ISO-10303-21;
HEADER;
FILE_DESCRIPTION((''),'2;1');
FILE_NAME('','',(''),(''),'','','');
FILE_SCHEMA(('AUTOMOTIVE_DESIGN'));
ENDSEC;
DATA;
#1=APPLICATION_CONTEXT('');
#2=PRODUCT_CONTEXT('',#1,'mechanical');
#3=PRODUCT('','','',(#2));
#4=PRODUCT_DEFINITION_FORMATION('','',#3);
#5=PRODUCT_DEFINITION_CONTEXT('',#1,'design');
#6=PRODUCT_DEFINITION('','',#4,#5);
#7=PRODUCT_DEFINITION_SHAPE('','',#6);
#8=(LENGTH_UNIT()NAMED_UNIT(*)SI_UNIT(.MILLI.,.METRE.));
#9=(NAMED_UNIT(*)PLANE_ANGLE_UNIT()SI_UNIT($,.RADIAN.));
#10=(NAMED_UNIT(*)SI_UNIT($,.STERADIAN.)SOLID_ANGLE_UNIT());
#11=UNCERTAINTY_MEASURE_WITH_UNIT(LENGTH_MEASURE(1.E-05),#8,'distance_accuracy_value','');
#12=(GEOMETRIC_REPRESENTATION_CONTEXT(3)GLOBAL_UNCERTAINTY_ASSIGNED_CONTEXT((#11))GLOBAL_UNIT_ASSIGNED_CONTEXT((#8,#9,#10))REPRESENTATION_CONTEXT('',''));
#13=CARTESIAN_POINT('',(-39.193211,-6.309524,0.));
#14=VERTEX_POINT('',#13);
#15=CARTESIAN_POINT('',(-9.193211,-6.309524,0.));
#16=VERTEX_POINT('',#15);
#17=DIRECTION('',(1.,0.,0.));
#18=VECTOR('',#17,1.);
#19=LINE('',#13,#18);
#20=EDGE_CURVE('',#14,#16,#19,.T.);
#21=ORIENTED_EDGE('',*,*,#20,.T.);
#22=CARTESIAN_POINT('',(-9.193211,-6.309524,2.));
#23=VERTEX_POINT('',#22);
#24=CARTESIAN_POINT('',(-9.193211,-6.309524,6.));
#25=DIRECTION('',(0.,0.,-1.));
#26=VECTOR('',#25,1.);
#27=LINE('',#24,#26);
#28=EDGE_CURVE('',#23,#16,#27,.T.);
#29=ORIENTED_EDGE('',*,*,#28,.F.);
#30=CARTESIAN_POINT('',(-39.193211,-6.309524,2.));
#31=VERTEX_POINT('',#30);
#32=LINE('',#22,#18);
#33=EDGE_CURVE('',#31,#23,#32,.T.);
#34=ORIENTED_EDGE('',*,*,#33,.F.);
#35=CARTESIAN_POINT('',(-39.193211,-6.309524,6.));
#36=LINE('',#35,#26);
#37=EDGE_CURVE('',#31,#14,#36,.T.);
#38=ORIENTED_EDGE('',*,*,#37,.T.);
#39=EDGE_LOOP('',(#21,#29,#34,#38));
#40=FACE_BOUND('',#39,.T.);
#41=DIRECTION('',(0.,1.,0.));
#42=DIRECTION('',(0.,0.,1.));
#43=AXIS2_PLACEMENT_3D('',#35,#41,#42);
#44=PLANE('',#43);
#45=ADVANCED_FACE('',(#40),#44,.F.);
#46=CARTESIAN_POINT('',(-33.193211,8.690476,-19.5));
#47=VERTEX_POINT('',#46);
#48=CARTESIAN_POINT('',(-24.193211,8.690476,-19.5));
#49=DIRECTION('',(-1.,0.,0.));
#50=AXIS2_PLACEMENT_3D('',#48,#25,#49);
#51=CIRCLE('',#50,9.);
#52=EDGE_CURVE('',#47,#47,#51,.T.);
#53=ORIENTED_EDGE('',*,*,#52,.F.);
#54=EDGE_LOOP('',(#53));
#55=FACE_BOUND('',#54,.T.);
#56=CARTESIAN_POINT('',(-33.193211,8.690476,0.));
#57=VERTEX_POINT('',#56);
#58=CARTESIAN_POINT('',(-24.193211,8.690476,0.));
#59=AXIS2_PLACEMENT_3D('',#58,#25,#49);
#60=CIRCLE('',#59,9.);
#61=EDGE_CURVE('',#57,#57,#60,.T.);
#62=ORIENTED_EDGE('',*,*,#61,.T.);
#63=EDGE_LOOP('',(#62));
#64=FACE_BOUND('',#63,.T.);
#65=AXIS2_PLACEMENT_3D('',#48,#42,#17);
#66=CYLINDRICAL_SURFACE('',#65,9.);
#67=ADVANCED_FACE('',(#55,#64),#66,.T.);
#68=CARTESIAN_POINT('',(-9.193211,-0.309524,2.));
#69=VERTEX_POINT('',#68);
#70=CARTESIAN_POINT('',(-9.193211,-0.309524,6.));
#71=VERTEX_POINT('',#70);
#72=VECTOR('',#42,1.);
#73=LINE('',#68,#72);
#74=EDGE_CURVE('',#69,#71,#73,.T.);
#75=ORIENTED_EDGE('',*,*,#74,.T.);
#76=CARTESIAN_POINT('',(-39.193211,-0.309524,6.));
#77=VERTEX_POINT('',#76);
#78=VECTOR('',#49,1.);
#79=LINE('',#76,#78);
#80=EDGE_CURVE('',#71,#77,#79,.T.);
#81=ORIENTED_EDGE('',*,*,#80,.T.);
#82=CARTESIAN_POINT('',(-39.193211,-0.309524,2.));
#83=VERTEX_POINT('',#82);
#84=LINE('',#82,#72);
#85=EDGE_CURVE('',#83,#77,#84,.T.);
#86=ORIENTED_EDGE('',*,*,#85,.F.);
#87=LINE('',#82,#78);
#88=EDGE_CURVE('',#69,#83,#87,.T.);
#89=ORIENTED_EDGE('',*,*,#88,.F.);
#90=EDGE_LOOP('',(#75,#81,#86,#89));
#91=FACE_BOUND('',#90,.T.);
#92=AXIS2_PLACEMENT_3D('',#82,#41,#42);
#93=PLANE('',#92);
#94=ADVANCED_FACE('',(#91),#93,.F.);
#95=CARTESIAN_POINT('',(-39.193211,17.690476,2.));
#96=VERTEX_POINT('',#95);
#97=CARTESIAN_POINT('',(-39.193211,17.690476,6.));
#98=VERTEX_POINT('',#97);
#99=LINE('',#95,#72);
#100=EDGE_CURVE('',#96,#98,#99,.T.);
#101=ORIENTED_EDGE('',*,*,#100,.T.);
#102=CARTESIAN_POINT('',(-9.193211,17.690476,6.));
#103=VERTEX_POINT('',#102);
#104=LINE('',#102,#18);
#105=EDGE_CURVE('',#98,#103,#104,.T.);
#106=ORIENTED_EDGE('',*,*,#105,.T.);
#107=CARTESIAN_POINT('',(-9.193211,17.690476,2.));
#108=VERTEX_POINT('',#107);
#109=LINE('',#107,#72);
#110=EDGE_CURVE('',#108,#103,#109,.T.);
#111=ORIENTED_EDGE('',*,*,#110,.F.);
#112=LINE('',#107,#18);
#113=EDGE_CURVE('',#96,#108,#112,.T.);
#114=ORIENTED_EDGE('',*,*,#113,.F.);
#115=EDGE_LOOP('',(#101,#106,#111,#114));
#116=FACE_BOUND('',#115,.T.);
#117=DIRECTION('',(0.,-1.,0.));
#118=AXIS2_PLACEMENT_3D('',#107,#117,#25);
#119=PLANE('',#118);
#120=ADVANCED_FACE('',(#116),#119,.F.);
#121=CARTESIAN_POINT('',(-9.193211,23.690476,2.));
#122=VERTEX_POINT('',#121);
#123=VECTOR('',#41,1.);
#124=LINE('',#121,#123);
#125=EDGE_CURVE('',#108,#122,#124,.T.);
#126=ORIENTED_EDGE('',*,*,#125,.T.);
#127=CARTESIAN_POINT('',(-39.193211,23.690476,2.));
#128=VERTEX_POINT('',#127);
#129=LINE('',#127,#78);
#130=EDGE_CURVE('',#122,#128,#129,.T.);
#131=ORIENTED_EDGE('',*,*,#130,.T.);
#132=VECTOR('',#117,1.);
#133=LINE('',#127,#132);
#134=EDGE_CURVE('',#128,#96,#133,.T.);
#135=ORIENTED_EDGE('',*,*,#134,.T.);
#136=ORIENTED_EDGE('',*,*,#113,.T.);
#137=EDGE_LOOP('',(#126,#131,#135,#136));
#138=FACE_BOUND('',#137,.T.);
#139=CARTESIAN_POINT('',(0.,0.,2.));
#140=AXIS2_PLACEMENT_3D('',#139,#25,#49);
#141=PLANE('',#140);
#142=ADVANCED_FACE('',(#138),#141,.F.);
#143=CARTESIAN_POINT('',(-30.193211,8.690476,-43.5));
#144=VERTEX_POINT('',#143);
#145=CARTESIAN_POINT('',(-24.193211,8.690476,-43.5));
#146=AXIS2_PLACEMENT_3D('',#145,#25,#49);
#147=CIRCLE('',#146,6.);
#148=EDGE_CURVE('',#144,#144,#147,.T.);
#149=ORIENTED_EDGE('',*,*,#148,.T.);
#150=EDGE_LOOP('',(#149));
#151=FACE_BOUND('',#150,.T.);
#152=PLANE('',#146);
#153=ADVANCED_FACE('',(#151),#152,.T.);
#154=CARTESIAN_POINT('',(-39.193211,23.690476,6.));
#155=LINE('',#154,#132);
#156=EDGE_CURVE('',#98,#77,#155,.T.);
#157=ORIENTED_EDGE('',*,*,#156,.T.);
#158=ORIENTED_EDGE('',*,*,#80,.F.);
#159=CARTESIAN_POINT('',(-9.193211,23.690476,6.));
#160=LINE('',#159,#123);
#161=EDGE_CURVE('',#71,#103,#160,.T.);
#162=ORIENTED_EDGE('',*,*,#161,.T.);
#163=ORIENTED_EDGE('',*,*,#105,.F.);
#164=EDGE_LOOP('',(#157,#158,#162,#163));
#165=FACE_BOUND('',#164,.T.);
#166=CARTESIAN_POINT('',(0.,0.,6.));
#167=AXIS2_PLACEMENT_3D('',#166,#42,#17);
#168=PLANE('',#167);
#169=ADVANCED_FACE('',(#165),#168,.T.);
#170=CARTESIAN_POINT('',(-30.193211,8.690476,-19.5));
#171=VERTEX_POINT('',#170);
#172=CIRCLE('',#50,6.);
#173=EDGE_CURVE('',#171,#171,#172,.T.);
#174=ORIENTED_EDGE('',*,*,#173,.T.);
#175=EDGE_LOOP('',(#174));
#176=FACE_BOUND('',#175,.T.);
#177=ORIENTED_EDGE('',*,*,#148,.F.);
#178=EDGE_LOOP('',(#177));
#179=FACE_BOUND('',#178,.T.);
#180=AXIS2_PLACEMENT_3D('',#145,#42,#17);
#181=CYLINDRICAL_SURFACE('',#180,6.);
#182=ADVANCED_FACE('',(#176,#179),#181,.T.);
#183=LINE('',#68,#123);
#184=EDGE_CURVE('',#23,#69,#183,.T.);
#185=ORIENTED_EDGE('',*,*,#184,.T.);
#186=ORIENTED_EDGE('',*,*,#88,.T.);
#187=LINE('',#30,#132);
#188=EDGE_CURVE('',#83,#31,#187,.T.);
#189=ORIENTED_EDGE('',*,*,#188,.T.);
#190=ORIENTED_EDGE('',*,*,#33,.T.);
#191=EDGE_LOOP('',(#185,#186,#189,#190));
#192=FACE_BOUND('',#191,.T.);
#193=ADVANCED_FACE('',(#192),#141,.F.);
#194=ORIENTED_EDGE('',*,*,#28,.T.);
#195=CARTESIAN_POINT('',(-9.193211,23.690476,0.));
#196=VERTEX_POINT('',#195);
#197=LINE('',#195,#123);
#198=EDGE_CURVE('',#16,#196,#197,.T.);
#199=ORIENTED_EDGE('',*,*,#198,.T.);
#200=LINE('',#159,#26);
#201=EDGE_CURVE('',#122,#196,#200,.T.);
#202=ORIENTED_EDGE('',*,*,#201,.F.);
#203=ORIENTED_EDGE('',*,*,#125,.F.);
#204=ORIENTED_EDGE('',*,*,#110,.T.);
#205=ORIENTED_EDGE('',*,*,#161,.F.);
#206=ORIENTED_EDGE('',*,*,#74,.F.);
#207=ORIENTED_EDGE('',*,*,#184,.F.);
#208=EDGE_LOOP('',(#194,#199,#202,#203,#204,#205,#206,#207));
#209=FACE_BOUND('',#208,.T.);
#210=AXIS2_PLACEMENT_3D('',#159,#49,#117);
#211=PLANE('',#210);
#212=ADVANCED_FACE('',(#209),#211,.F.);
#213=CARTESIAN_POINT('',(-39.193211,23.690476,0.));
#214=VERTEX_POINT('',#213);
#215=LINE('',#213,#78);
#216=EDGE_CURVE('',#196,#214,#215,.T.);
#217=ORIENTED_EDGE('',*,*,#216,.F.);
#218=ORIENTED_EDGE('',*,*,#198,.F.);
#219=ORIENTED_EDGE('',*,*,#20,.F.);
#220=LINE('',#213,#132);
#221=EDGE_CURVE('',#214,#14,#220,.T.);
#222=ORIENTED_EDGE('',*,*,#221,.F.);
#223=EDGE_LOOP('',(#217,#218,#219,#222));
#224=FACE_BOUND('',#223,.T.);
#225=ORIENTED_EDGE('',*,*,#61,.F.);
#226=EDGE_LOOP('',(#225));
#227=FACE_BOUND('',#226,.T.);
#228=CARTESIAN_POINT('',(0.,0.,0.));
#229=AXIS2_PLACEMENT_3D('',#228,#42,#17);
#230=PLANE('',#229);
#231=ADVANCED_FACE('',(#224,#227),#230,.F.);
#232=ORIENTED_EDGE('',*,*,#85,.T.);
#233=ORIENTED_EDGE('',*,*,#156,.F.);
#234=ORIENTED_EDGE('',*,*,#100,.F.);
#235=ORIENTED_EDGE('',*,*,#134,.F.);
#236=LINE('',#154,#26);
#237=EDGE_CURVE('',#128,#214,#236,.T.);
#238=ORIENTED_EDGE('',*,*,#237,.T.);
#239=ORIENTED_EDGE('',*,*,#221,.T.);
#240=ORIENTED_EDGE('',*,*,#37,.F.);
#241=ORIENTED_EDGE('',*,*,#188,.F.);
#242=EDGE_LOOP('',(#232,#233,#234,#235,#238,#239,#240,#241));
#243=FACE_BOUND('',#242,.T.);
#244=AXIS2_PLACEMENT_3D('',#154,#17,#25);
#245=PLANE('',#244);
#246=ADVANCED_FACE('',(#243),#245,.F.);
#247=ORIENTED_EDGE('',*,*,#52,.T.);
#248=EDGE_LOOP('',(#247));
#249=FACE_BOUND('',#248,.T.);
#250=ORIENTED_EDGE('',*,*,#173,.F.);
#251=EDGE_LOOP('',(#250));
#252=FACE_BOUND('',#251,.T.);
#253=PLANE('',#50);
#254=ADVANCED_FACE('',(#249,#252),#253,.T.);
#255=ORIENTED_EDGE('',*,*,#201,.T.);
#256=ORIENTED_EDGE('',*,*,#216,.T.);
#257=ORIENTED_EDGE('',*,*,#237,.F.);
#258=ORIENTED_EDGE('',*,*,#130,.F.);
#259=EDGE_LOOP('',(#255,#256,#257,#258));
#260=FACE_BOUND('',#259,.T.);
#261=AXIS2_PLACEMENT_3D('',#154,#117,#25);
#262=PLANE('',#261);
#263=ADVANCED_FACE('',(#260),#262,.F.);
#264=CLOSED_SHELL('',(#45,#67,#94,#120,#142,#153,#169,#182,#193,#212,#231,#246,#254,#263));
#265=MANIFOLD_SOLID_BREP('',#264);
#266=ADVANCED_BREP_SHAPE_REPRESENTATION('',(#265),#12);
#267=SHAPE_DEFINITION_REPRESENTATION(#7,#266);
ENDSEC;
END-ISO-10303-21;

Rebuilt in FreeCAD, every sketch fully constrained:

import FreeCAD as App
import Part
import Sketcher
from FreeCAD import Vector


def add_polygon(sketch, points):
    """Adds a closed chain of lines whose ends are joined by coincident constraints."""
    first, n = sketch.GeometryCount, len(points)
    for a, b in zip(points, points[1:] + points[:1]):
        sketch.addGeometry(Part.LineSegment(App.Vector(*a, 0), App.Vector(*b, 0)), False)
    for i in range(n):
        sketch.addConstraint(Sketcher.Constraint("Coincident", first + i, 2, first + (i + 1) % n, 1))

doc = App.newDocument("Part")
params = doc.addObject("Spreadsheet::Sheet", "Params")
for row, (alias, value) in enumerate([
    ("sketch1_width", "30 mm"),
    ("pad1_length", "6 mm"),
    ("sketch2_width", "30 mm"),
    ("sketch2_height", "6 mm"),
    ("pocket1_length", "4 mm"),
    ("sketch3_width", "30 mm"),
    ("sketch3_height", "6 mm"),
    ("pocket2_length", "4 mm"),
    ("sketch4_diameter", "18 mm"),
    ("pad2_length", "19.5 mm"),
    ("sketch5_diameter", "12 mm"),
    ("pad3_length", "24 mm"),
], start=1):
    params.set(f"A{row}", alias)
    params.set(f"B{row}", "=" + value)
    params.setAlias(f"B{row}", alias)

body = doc.addObject("PartDesign::Body", "Body")

sketch1 = body.newObject("Sketcher::SketchObject", "Sketch")
sketch1.AttachmentSupport = (doc.getObject("XY_Plane"), [""])
sketch1.MapMode = "FlatFace"
add_polygon(sketch1, [(-39.193211, 23.690476), (-39.193211, -6.309524), (-9.193211, -6.309524), (-9.193211, 23.690476)])
sketch1.addConstraint([
    Sketcher.Constraint("Vertical", 0),
    Sketcher.Constraint("Horizontal", 1),
    Sketcher.Constraint("Vertical", 2),
    Sketcher.Constraint("Horizontal", 3),
    Sketcher.Constraint("Equal", 3, 0),
    Sketcher.Constraint("DistanceX", 1, 1, 1, 2, 30.0),
    Sketcher.Constraint("DistanceX", 0, 2, -1, 1, 39.193211),
    Sketcher.Constraint("DistanceY", 0, 2, -1, 1, 6.309524),
])
sketch1.setExpression("Constraints[9]", "Params.sketch1_width")
pad1 = body.newObject("PartDesign::Pad", "Pad")
pad1.Profile = sketch1
pad1.setExpression("Length", "Params.pad1_length")

sketch2 = body.newObject("Sketcher::SketchObject", "Sketch001")
sketch2.AttachmentSupport = (doc.getObject("XY_Plane"), [""])
sketch2.MapMode = "FlatFace"
sketch2.AttachmentOffset = App.Placement(Vector(0, 0, 6), App.Rotation())
add_polygon(sketch2, [(-39.193211, -0.309524), (-39.193211, -6.309524), (-9.193211, -6.309524), (-9.193211, -0.309524)])
sketch2.addConstraint([
    Sketcher.Constraint("Vertical", 0),
    Sketcher.Constraint("Horizontal", 1),
    Sketcher.Constraint("Vertical", 2),
    Sketcher.Constraint("Horizontal", 3),
    Sketcher.Constraint("DistanceX", 1, 1, 1, 2, 30.0),
    Sketcher.Constraint("DistanceY", 0, 2, 0, 1, 6.0),
    Sketcher.Constraint("DistanceX", 0, 2, -1, 1, 39.193211),
    Sketcher.Constraint("DistanceY", 0, 2, -1, 1, 6.309524),
])
sketch2.setExpression("Constraints[8]", "Params.sketch2_width")
sketch2.setExpression("Constraints[9]", "Params.sketch2_height")
pocket1 = body.newObject("PartDesign::Pocket", "Pocket")
pocket1.Profile = sketch2
pocket1.setExpression("Length", "Params.pocket1_length")

sketch3 = body.newObject("Sketcher::SketchObject", "Sketch002")
sketch3.AttachmentSupport = (doc.getObject("XY_Plane"), [""])
sketch3.MapMode = "FlatFace"
sketch3.AttachmentOffset = App.Placement(Vector(0, 0, 6), App.Rotation())
add_polygon(sketch3, [(-39.193211, 23.690476), (-39.193211, 17.690476), (-9.193211, 17.690476), (-9.193211, 23.690476)])
sketch3.addConstraint([
    Sketcher.Constraint("Vertical", 0),
    Sketcher.Constraint("Horizontal", 1),
    Sketcher.Constraint("Vertical", 2),
    Sketcher.Constraint("Horizontal", 3),
    Sketcher.Constraint("DistanceX", 1, 1, 1, 2, 30.0),
    Sketcher.Constraint("DistanceY", 0, 2, 0, 1, 6.0),
    Sketcher.Constraint("DistanceX", 0, 2, -1, 1, 39.193211),
    Sketcher.Constraint("DistanceY", -1, 1, 0, 2, 17.690476),
])
sketch3.setExpression("Constraints[8]", "Params.sketch3_width")
sketch3.setExpression("Constraints[9]", "Params.sketch3_height")
pocket2 = body.newObject("PartDesign::Pocket", "Pocket001")
pocket2.Profile = sketch3
pocket2.setExpression("Length", "Params.pocket2_length")

sketch4 = body.newObject("Sketcher::SketchObject", "Sketch003")
sketch4.AttachmentSupport = (doc.getObject("XY_Plane"), [""])
sketch4.MapMode = "FlatFace"
sketch4.addGeometry(Part.Circle(Vector(-24.193211, 8.690476, 0), Vector(0, 0, 1), 9), False)
sketch4.addConstraint([
    Sketcher.Constraint("Diameter", 0, 18.0),
    Sketcher.Constraint("DistanceX", 0, 3, -1, 1, 24.193211),
    Sketcher.Constraint("DistanceY", -1, 1, 0, 3, 8.690476),
])
sketch4.setExpression("Constraints[0]", "Params.sketch4_diameter")
pad2 = body.newObject("PartDesign::Pad", "Pad001")
pad2.Profile = sketch4
pad2.setExpression("Length", "Params.pad2_length")
pad2.Reversed = True

sketch5 = body.newObject("Sketcher::SketchObject", "Sketch004")
sketch5.AttachmentSupport = (doc.getObject("XY_Plane"), [""])
sketch5.MapMode = "FlatFace"
sketch5.AttachmentOffset = App.Placement(Vector(0, 0, -19.5), App.Rotation())
sketch5.addGeometry(Part.Circle(Vector(-24.193211, 8.690476, 0), Vector(0, 0, 1), 6), False)
sketch5.addConstraint([
    Sketcher.Constraint("Diameter", 0, 12.0),
    Sketcher.Constraint("DistanceX", 0, 3, -1, 1, 24.193211),
    Sketcher.Constraint("DistanceY", -1, 1, 0, 3, 8.690476),
])
sketch5.setExpression("Constraints[0]", "Params.sketch5_diameter")
pad3 = body.newObject("PartDesign::Pad", "Pad002")
pad3.Profile = sketch5
pad3.setExpression("Length", "Params.pad3_length")
pad3.Reversed = True

doc.recompute()
